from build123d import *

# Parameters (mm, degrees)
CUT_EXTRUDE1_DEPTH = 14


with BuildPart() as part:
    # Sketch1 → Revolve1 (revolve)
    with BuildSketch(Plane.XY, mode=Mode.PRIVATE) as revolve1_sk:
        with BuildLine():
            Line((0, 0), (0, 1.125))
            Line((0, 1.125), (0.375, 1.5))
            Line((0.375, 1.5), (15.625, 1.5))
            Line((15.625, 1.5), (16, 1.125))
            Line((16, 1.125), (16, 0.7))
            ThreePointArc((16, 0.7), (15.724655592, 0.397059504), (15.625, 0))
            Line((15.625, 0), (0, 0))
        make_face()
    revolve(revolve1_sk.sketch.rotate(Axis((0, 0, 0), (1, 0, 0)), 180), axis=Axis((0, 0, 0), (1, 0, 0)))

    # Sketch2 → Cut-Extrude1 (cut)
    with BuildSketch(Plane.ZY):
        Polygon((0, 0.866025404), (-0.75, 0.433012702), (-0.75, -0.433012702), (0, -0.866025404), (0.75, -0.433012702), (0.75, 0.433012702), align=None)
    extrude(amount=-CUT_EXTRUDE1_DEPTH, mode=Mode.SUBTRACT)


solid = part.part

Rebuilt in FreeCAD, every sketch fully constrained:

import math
import FreeCAD as App
import Part
import Sketcher
from FreeCAD import Vector
Q = App.Units.Quantity

doc = App.newDocument("Part")
body = doc.addObject("PartDesign::Body", "Body")

sketch1 = body.newObject("Sketcher::SketchObject", "Sketch")
sketch1.AttachmentSupport = (doc.getObject("XY_Plane"), [""])
sketch1.MapMode = "FlatFace"
sketch1.addGeometry([
    Part.LineSegment(Vector(0, 1.12, 0), Vector(0, 0, 0)),
    Part.LineSegment(Vector(0, 0, 0), Vector(15.62, 0, 0)),
    Part.ArcOfCircle(Part.Circle(Vector(16.47, 0, 0), Vector(0, 0, 1), 0.84), math.radians(124), math.radians(180)),
    Part.LineSegment(Vector(16, 0.7, 0), Vector(16, 1.12, 0)),
    Part.LineSegment(Vector(16, 1.12, 0), Vector(15.62, 1.5, 0)),
    Part.LineSegment(Vector(15.62, 1.5, 0), Vector(0.38, 1.5, 0)),
    Part.LineSegment(Vector(0.38, 1.5, 0), Vector(0, 1.12, 0)),
], False)
sketch1.addConstraint([
    Sketcher.Constraint("Coincident", 0, 2, 1, 1),
    Sketcher.Constraint("Coincident", 1, 2, 2, 2),
    Sketcher.Constraint("Coincident", 2, 1, 3, 1),
    Sketcher.Constraint("Coincident", 3, 2, 4, 1),
    Sketcher.Constraint("Coincident", 4, 2, 5, 1),
    Sketcher.Constraint("Coincident", 5, 2, 6, 1),
    Sketcher.Constraint("Coincident", 6, 2, 0, 1),
    Sketcher.Constraint("Vertical", 0),
    Sketcher.Constraint("Horizontal", 1),
    Sketcher.Constraint("Vertical", 3),
    Sketcher.Constraint("Horizontal", 5),
    Sketcher.Constraint("Coincident", 0, 2, -1, 1),
    Sketcher.Constraint("PointOnObject", 2, 3, -1),
    Sketcher.Constraint("Perpendicular", 4, 6),
    Sketcher.Constraint("Horizontal", 3, 2, 6, 2),
    Sketcher.Constraint("Vertical", 1, 2, 4, 2),
    Sketcher.Constraint("Equal", 4, 6),
    Sketcher.Constraint("DistanceX", -1, 1, 2, 1, 16.0),
    Sketcher.Constraint("DistanceX", 5, 2, 5, 1, 15.25),
    Sketcher.Constraint("DistanceY", -1, 1, 2, 1, 0.7),
    Sketcher.Constraint("DistanceY", -1, 1, 4, 2, 1.5),
])
revolution = body.newObject("PartDesign::Revolution", "Revolution")
revolution.Profile = sketch1
revolution.ReferenceAxis = (sketch1, ["H_Axis"])
revolution.Angle = 360

sketch2 = body.newObject("Sketcher::SketchObject", "Sketch001")
sketch2.AttachmentSupport = (doc.getObject("YZ_Plane"), [""])
sketch2.MapMode = "FlatFace"
sketch2.addGeometry([
    Part.LineSegment(Vector(0.9, 0, 0), Vector(0.4, -0.8, 0)),
    Part.LineSegment(Vector(0.4, -0.8, 0), Vector(-0.4, -0.8, 0)),
    Part.LineSegment(Vector(-0.4, -0.8, 0), Vector(-0.9, 0, 0)),
    Part.LineSegment(Vector(-0.9, 0, 0), Vector(-0.4, 0.8, 0)),
    Part.LineSegment(Vector(-0.4, 0.8, 0), Vector(0.4, 0.8, 0)),
    Part.LineSegment(Vector(0.4, 0.8, 0), Vector(0.9, 0, 0)),
], False)
sketch2.addConstraint([
    Sketcher.Constraint("Coincident", 0, 2, 1, 1),
    Sketcher.Constraint("Coincident", 1, 2, 2, 1),
    Sketcher.Constraint("Coincident", 2, 2, 3, 1),
    Sketcher.Constraint("Coincident", 3, 2, 4, 1),
    Sketcher.Constraint("Coincident", 4, 2, 5, 1),
    Sketcher.Constraint("Coincident", 5, 2, 0, 1),
    Sketcher.Constraint("Horizontal", 1),
    Sketcher.Constraint("Horizontal", 4),
    Sketcher.Constraint("Symmetric", 0, 2, 3, 2, -1, 1),
    Sketcher.Constraint("Symmetric", 2, 2, 5, 2, -1, 1),
    Sketcher.Constraint("PointOnObject", 2, 2, -1),
    Sketcher.Constraint("Parallel", 2, 5),
    Sketcher.Constraint("Vertical", 1, 2, 3, 2),
    Sketcher.Constraint("Angle", 0, Q("-120 deg")),
    Sketcher.Constraint("DistanceY", 1, 2, 3, 2, 1.5),
    Sketcher.Constraint("DistanceX", 1, 2, 1, 1, 0.866025),
])
pocket1 = body.newObject("PartDesign::Pocket", "Pocket")
pocket1.Profile = sketch2
pocket1.Length = 14
pocket1.Reversed = True

doc.recompute()
